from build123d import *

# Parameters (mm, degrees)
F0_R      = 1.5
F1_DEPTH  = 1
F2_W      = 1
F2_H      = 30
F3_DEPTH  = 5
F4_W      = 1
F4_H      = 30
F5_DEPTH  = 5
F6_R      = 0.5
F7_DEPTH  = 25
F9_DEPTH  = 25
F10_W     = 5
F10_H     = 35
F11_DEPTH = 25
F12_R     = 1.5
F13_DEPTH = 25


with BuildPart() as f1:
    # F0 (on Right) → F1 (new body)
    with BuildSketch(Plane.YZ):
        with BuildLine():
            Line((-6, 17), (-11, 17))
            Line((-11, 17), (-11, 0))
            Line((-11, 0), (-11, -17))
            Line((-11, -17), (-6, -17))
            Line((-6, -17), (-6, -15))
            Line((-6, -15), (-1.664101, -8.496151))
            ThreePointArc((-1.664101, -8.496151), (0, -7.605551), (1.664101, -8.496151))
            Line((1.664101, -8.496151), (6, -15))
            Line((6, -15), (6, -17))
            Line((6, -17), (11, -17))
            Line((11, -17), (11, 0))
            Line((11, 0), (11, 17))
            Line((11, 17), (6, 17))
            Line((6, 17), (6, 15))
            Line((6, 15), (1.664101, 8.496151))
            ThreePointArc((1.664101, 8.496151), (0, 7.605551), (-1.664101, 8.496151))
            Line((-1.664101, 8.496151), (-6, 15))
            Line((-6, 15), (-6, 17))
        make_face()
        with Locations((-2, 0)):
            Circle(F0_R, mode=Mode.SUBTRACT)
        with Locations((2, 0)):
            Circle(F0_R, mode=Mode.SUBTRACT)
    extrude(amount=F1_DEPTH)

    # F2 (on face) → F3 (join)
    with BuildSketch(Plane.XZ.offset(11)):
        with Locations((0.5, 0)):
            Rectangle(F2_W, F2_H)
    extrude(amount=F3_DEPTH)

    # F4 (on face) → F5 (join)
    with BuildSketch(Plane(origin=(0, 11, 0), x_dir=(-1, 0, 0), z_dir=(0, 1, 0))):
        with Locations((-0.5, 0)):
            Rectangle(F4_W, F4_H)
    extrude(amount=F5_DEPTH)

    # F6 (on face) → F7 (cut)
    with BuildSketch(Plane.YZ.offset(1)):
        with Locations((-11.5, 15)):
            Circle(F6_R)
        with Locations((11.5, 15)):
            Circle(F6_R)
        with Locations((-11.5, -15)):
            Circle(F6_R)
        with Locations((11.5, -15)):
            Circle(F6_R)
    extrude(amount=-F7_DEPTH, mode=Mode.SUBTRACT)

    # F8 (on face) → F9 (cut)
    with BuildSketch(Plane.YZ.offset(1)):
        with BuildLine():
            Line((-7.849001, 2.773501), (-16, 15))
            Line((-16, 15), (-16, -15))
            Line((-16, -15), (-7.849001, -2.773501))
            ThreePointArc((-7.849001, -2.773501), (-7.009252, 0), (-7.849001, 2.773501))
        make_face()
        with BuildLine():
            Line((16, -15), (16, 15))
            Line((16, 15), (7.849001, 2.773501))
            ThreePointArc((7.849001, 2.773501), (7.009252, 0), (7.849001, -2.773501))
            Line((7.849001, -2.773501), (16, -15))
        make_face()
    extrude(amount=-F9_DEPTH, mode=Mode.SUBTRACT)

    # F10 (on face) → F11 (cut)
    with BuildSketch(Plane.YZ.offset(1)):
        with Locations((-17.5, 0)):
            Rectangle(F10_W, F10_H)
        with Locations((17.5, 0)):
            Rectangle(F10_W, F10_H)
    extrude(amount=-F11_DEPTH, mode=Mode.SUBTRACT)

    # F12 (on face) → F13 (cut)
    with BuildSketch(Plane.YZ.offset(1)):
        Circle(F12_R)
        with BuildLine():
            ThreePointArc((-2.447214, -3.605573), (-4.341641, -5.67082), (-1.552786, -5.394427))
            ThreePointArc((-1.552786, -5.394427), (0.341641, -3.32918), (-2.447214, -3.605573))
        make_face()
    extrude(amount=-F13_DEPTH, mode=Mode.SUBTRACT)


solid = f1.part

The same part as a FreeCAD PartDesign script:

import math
import FreeCAD as App
import Part
import Sketcher
Q = App.Units.Quantity

doc = App.newDocument("Part")
body = doc.addObject("PartDesign::Body", "Body")

# Sketch on YZ plane
sketch1 = body.newObject("Sketcher::SketchObject", "Sketch")
sketch1.AttachmentSupport = (doc.getObject("YZ_Plane"), [""])
sketch1.MapMode = "FlatFace"
sketch1.addGeometry(Part.LineSegment(App.Vector(-6, 17, 0), App.Vector(-11, 17, 0)), False)
sketch1.addGeometry(Part.LineSegment(App.Vector(-11, 17, 0), App.Vector(-11, -17, 0)), False)
sketch1.addGeometry(Part.LineSegment(App.Vector(-11, -17, 0), App.Vector(-6, -17, 0)), False)
sketch1.addGeometry(Part.LineSegment(App.Vector(-6, -17, 0), App.Vector(-6, -15, 0)), False)
sketch1.addGeometry(Part.LineSegment(App.Vector(-6, -15, 0), App.Vector(-1.664101, -8.496151, 0)), False)
sketch1.addGeometry(Part.ArcOfCircle(Part.Circle(App.Vector(0, -9.605551, 0), App.Vector(0, 0, 1), 2), math.radians(33.690058), math.radians(146.309942)), False)
sketch1.addGeometry(Part.LineSegment(App.Vector(1.664101, -8.496151, 0), App.Vector(6, -15, 0)), False)
sketch1.addGeometry(Part.LineSegment(App.Vector(6, -15, 0), App.Vector(6, -17, 0)), False)
sketch1.addGeometry(Part.LineSegment(App.Vector(6, -17, 0), App.Vector(11, -17, 0)), False)
sketch1.addGeometry(Part.LineSegment(App.Vector(11, -17, 0), App.Vector(11, 17, 0)), False)
sketch1.addGeometry(Part.LineSegment(App.Vector(11, 17, 0), App.Vector(6, 17, 0)), False)
sketch1.addGeometry(Part.LineSegment(App.Vector(6, 17, 0), App.Vector(6, 15, 0)), False)
sketch1.addGeometry(Part.LineSegment(App.Vector(6, 15, 0), App.Vector(1.664101, 8.496151, 0)), False)
sketch1.addGeometry(Part.ArcOfCircle(Part.Circle(App.Vector(0, 9.605551, 0), App.Vector(0, 0, 1), 2), math.radians(-146.309942), math.radians(-33.690058)), False)
sketch1.addGeometry(Part.LineSegment(App.Vector(-1.664101, 8.496151, 0), App.Vector(-6, 15, 0)), False)
sketch1.addGeometry(Part.LineSegment(App.Vector(-6, 15, 0), App.Vector(-6, 17, 0)), False)
sketch1.addGeometry(Part.Circle(App.Vector(-2, 0, 0), App.Vector(0, 0, 1), 1.5), False)
sketch1.addGeometry(Part.Circle(App.Vector(2, 0, 0), App.Vector(0, 0, 1), 1.5), False)
sketch1.addConstraint(Sketcher.Constraint("Coincident", 0, 2, 1, 1))
sketch1.addConstraint(Sketcher.Constraint("Coincident", 1, 2, 2, 1))
sketch1.addConstraint(Sketcher.Constraint("Coincident", 2, 2, 3, 1))
sketch1.addConstraint(Sketcher.Constraint("Coincident", 3, 2, 4, 1))
sketch1.addConstraint(Sketcher.Constraint("Tangent", 4, 2, 5, 2))
sketch1.addConstraint(Sketcher.Constraint("Tangent", 5, 1, 6, 1))
sketch1.addConstraint(Sketcher.Constraint("Coincident", 6, 2, 7, 1))
sketch1.addConstraint(Sketcher.Constraint("Coincident", 7, 2, 8, 1))
sketch1.addConstraint(Sketcher.Constraint("Coincident", 8, 2, 9, 1))
sketch1.addConstraint(Sketcher.Constraint("Coincident", 9, 2, 10, 1))
sketch1.addConstraint(Sketcher.Constraint("Coincident", 10, 2, 11, 1))
sketch1.addConstraint(Sketcher.Constraint("Coincident", 11, 2, 12, 1))
sketch1.addConstraint(Sketcher.Constraint("Tangent", 12, 2, 13, 2))
sketch1.addConstraint(Sketcher.Constraint("Tangent", 13, 1, 14, 1))
sketch1.addConstraint(Sketcher.Constraint("Coincident", 14, 2, 15, 1))
sketch1.addConstraint(Sketcher.Constraint("Coincident", 15, 2, 0, 1))
sketch1.addConstraint(Sketcher.Constraint("Horizontal", 0))
sketch1.addConstraint(Sketcher.Constraint("Vertical", 1))
sketch1.addConstraint(Sketcher.Constraint("Horizontal", 2))
sketch1.addConstraint(Sketcher.Constraint("Vertical", 3))
sketch1.addConstraint(Sketcher.Constraint("Vertical", 7))
sketch1.addConstraint(Sketcher.Constraint("Horizontal", 8))
sketch1.addConstraint(Sketcher.Constraint("Vertical", 9))
sketch1.addConstraint(Sketcher.Constraint("Horizontal", 10))
sketch1.addConstraint(Sketcher.Constraint("Vertical", 11))
sketch1.addConstraint(Sketcher.Constraint("Vertical", 15))
sketch1.addConstraint(Sketcher.Constraint("Equal", 5, 13))
sketch1.addConstraint(Sketcher.Constraint("Equal", 16, 17))
sketch1.addConstraint(Sketcher.Constraint("Symmetric", 5, 3, 13, 3, -1, 1))
sketch1.addConstraint(Sketcher.Constraint("Symmetric", 16, 3, 17, 3, -1, 1))
sketch1.addConstraint(Sketcher.Constraint("Symmetric", 0, 2, 8, 2, -1, 1))
sketch1.addConstraint(Sketcher.Constraint("Symmetric", 2, 2, 10, 2, -1, 1))
sketch1.addConstraint(Sketcher.Constraint("Symmetric", 6, 2, 14, 2, -1, 1))
sketch1.addConstraint(Sketcher.Constraint("Symmetric", 4, 2, 5, 1, -2))
sketch1.addConstraint(Sketcher.Constraint("Symmetric", 2, 2, 7, 2, -2))
sketch1.addConstraint(Sketcher.Constraint("PointOnObject", 16, 3, -1))
sketch1.addConstraint(Sketcher.Constraint("Parallel", 4, 12))
sketch1.addConstraint(Sketcher.Constraint("Diameter", 16, Q("3 mm")))
sketch1.addConstraint(Sketcher.Constraint("Radius", 5, Q("2 mm")))
sketch1.addConstraint(Sketcher.Constraint("DistanceX", 0, 2, 0, 1, Q("5 mm")))
sketch1.addConstraint(Sketcher.Constraint("DistanceY", 1, 2, 1, 1, Q("34 mm")))
sketch1.addConstraint(Sketcher.Constraint("DistanceY", 3, 1, 3, 2, Q("2 mm")))
sketch1.addConstraint(Sketcher.Constraint("DistanceX", 16, 3, -1, 1, Q("2 mm")))
sketch1.addConstraint(Sketcher.Constraint("DistanceX", 0, 2, -1, 1, Q("11 mm")))
sketch1.addConstraint(Sketcher.Constraint("DistanceX", 4, 2, -1, 1, Q("1.664101 mm")))
pad1 = body.newObject("PartDesign::Pad", "Pad")
pad1.Profile = sketch1
pad1.Length = 1

# Sketch on XZ plane
sketch2 = body.newObject("Sketcher::SketchObject", "Sketch001")
sketch2.AttachmentSupport = (doc.getObject("XZ_Plane"), [""])
sketch2.MapMode = "FlatFace"
sketch2.AttachmentOffset = App.Placement(App.Vector(0, 0, 11), App.Rotation())
sketch2.addGeometry(Part.LineSegment(App.Vector(0, 15, 0), App.Vector(0, -15, 0)), False)
sketch2.addGeometry(Part.LineSegment(App.Vector(0, -15, 0), App.Vector(1, -15, 0)), False)
sketch2.addGeometry(Part.LineSegment(App.Vector(1, -15, 0), App.Vector(1, 15, 0)), False)
sketch2.addGeometry(Part.LineSegment(App.Vector(1, 15, 0), App.Vector(0, 15, 0)), False)
sketch2.addConstraint(Sketcher.Constraint("Coincident", 0, 2, 1, 1))
sketch2.addConstraint(Sketcher.Constraint("Coincident", 1, 2, 2, 1))
sketch2.addConstraint(Sketcher.Constraint("Coincident", 2, 2, 3, 1))
sketch2.addConstraint(Sketcher.Constraint("Coincident", 3, 2, 0, 1))
sketch2.addConstraint(Sketcher.Constraint("Vertical", 0))
sketch2.addConstraint(Sketcher.Constraint("Horizontal", 1))
sketch2.addConstraint(Sketcher.Constraint("Vertical", 2))
sketch2.addConstraint(Sketcher.Constraint("Horizontal", 3))
sketch2.addConstraint(Sketcher.Constraint("Symmetric", 0, 2, 3, 2, -1, 1))
sketch2.addConstraint(Sketcher.Constraint("DistanceX", 1, 1, 1, 2, Q("1 mm")))
sketch2.addConstraint(Sketcher.Constraint("DistanceY", 0, 2, 0, 1, Q("30 mm")))
pad2 = body.newObject("PartDesign::Pad", "Pad001")
pad2.Profile = sketch2
pad2.Length = 5

# Sketch on XZ plane
sketch3 = body.newObject("Sketcher::SketchObject", "Sketch002")
sketch3.AttachmentSupport = (doc.getObject("XZ_Plane"), [""])
sketch3.MapMode = "FlatFace"
sketch3.AttachmentOffset = App.Placement(App.Vector(0, 0, -11), App.Rotation())
sketch3.addGeometry(Part.LineSegment(App.Vector(1, 15, 0), App.Vector(1, -15, 0)), False)
sketch3.addGeometry(Part.LineSegment(App.Vector(1, -15, 0), App.Vector(0, -15, 0)), False)
sketch3.addGeometry(Part.LineSegment(App.Vector(0, -15, 0), App.Vector(0, 15, 0)), False)
sketch3.addGeometry(Part.LineSegment(App.Vector(0, 15, 0), App.Vector(1, 15, 0)), False)
sketch3.addConstraint(Sketcher.Constraint("Coincident", 0, 2, 1, 1))
sketch3.addConstraint(Sketcher.Constraint("Coincident", 1, 2, 2, 1))
sketch3.addConstraint(Sketcher.Constraint("Coincident", 2, 2, 3, 1))
sketch3.addConstraint(Sketcher.Constraint("Coincident", 3, 2, 0, 1))
sketch3.addConstraint(Sketcher.Constraint("Vertical", 0))
sketch3.addConstraint(Sketcher.Constraint("Horizontal", 1))
sketch3.addConstraint(Sketcher.Constraint("Vertical", 2))
sketch3.addConstraint(Sketcher.Constraint("Horizontal", 3))
sketch3.addConstraint(Sketcher.Constraint("Symmetric", 1, 2, 2, 2, -1, 1))
sketch3.addConstraint(Sketcher.Constraint("DistanceX", 1, 2, 1, 1, Q("1 mm")))
sketch3.addConstraint(Sketcher.Constraint("DistanceY", 0, 2, 0, 1, Q("30 mm")))
pad3 = body.newObject("PartDesign::Pad", "Pad002")
pad3.Profile = sketch3
pad3.Length = 5
pad3.Reversed = True

# Sketch on YZ plane
sketch4 = body.newObject("Sketcher::SketchObject", "Sketch003")
sketch4.AttachmentSupport = (doc.getObject("YZ_Plane"), [""])
sketch4.MapMode = "FlatFace"
sketch4.AttachmentOffset = App.Placement(App.Vector(0, 0, 1), App.Rotation())
sketch4.addGeometry(Part.Circle(App.Vector(-11.5, 15, 0), App.Vector(0, 0, 1), 0.5), False)
sketch4.addGeometry(Part.Circle(App.Vector(11.5, 15, 0), App.Vector(0, 0, 1), 0.5), False)
sketch4.addGeometry(Part.Circle(App.Vector(-11.5, -15, 0), App.Vector(0, 0, 1), 0.5), False)
sketch4.addGeometry(Part.Circle(App.Vector(11.5, -15, 0), App.Vector(0, 0, 1), 0.5), False)
sketch4.addConstraint(Sketcher.Constraint("Equal", 0, 1))
sketch4.addConstraint(Sketcher.Constraint("Equal", 1, 2))
sketch4.addConstraint(Sketcher.Constraint("Equal", 2, 3))
sketch4.addConstraint(Sketcher.Constraint("Symmetric", 1, 3, 2, 3, -1, 1))
sketch4.addConstraint(Sketcher.Constraint("Symmetric", 0, 3, 3, 3, -1, 1))
sketch4.addConstraint(Sketcher.Constraint("Symmetric", 0, 3, 1, 3, -2))
sketch4.addConstraint(Sketcher.Constraint("Diameter", 0, Q("1 mm")))
sketch4.addConstraint(Sketcher.Constraint("DistanceY", -1, 1, 0, 3, Q("15 mm")))
sketch4.addConstraint(Sketcher.Constraint("DistanceX", 0, 3, 1, 3, Q("23 mm")))
pocket1 = body.newObject("PartDesign::Pocket", "Pocket")
pocket1.Profile = sketch4
pocket1.Length = 25

# Sketch on YZ plane
sketch5 = body.newObject("Sketcher::SketchObject", "Sketch004")
sketch5.AttachmentSupport = (doc.getObject("YZ_Plane"), [""])
sketch5.MapMode = "FlatFace"
sketch5.AttachmentOffset = App.Placement(App.Vector(0, 0, 1), App.Rotation())
sketch5.addGeometry(Part.LineSegment(App.Vector(-7.849001, 2.773501, 0), App.Vector(-16, 15, 0)), False)
sketch5.addGeometry(Part.LineSegment(App.Vector(-16, 15, 0), App.Vector(-16, -15, 0)), False)
sketch5.addGeometry(Part.LineSegment(App.Vector(-16, -15, 0), App.Vector(-7.849001, -2.773501, 0)), False)
sketch5.addGeometry(Part.ArcOfCircle(Part.Circle(App.Vector(-12.00925, 0, 0), App.Vector(0, 0, 1), 4.999998), math.radians(-33.690085), math.radians(33.690085)), False)
sketch5.addGeometry(Part.LineSegment(App.Vector(16, -15, 0), App.Vector(16, 15, 0)), False)
sketch5.addGeometry(Part.LineSegment(App.Vector(16, 15, 0), App.Vector(7.849001, 2.773501, 0)), False)
sketch5.addGeometry(Part.ArcOfCircle(Part.Circle(App.Vector(12.00925, 0, 0), App.Vector(0, 0, 1), 4.999998), math.radians(146.309915), math.radians(213.690085)), False)
sketch5.addGeometry(Part.LineSegment(App.Vector(7.849001, -2.773501, 0), App.Vector(16, -15, 0)), False)
sketch5.addConstraint(Sketcher.Constraint("Coincident", 0, 2, 1, 1))
sketch5.addConstraint(Sketcher.Constraint("Coincident", 1, 2, 2, 1))
sketch5.addConstraint(Sketcher.Constraint("Tangent", 2, 2, 3, 1))
sketch5.addConstraint(Sketcher.Constraint("Tangent", 3, 2, 0, 1))
sketch5.addConstraint(Sketcher.Constraint("Coincident", 4, 2, 5, 1))
sketch5.addConstraint(Sketcher.Constraint("Tangent", 5, 2, 6, 1))
sketch5.addConstraint(Sketcher.Constraint("Tangent", 6, 2, 7, 1))
sketch5.addConstraint(Sketcher.Constraint("Coincident", 7, 2, 4, 1))
sketch5.addConstraint(Sketcher.Constraint("Vertical", 1))
sketch5.addConstraint(Sketcher.Constraint("Vertical", 4))
sketch5.addConstraint(Sketcher.Constraint("Equal", 3, 6))
sketch5.addConstraint(Sketcher.Constraint("Symmetric", 3, 3, 6, 3, -1, 1))
sketch5.addConstraint(Sketcher.Constraint("Symmetric", 1, 2, 4, 2, -1, 1))
sketch5.addConstraint(Sketcher.Constraint("Symmetric", 3, 2, 5, 2, -2))
sketch5.addConstraint(Sketcher.Constraint("Parallel", 0, 7))
sketch5.addConstraint(Sketcher.Constraint("DistanceY", 1, 2, 1, 1, Q("30 mm")))
sketch5.addConstraint(Sketcher.Constraint("DistanceX", 0, 2, -1, 1, Q("16 mm")))
sketch5.addConstraint(Sketcher.Constraint("DistanceX", 2, 2, -1, 1, Q("7.849001 mm")))
sketch5.addConstraint(Sketcher.Constraint("Radius", 3, Q("4.999998 mm")))
pocket2 = body.newObject("PartDesign::Pocket", "Pocket001")
pocket2.Profile = sketch5
pocket2.Length = 25

# Sketch on YZ plane
sketch6 = body.newObject("Sketcher::SketchObject", "Sketch005")
sketch6.AttachmentSupport = (doc.getObject("YZ_Plane"), [""])
sketch6.MapMode = "FlatFace"
sketch6.AttachmentOffset = App.Placement(App.Vector(0, 0, 1), App.Rotation())
sketch6.addGeometry(Part.LineSegment(App.Vector(-20, 17.5, 0), App.Vector(-20, -17.5, 0)), False)
sketch6.addGeometry(Part.LineSegment(App.Vector(-20, -17.5, 0), App.Vector(-15, -17.5, 0)), False)
sketch6.addGeometry(Part.LineSegment(App.Vector(-15, -17.5, 0), App.Vector(-15, 17.5, 0)), False)
sketch6.addGeometry(Part.LineSegment(App.Vector(-15, 17.5, 0), App.Vector(-20, 17.5, 0)), False)
sketch6.addGeometry(Part.LineSegment(App.Vector(15, 17.5, 0), App.Vector(15, -17.5, 0)), False)
sketch6.addGeometry(Part.LineSegment(App.Vector(15, -17.5, 0), App.Vector(20, -17.5, 0)), False)
sketch6.addGeometry(Part.LineSegment(App.Vector(20, -17.5, 0), App.Vector(20, 17.5, 0)), False)
sketch6.addGeometry(Part.LineSegment(App.Vector(20, 17.5, 0), App.Vector(15, 17.5, 0)), False)
sketch6.addConstraint(Sketcher.Constraint("Coincident", 0, 2, 1, 1))
sketch6.addConstraint(Sketcher.Constraint("Coincident", 1, 2, 2, 1))
sketch6.addConstraint(Sketcher.Constraint("Coincident", 2, 2, 3, 1))
sketch6.addConstraint(Sketcher.Constraint("Coincident", 3, 2, 0, 1))
sketch6.addConstraint(Sketcher.Constraint("Coincident", 4, 2, 5, 1))
sketch6.addConstraint(Sketcher.Constraint("Coincident", 5, 2, 6, 1))
sketch6.addConstraint(Sketcher.Constraint("Coincident", 6, 2, 7, 1))
sketch6.addConstraint(Sketcher.Constraint("Coincident", 7, 2, 4, 1))
sketch6.addConstraint(Sketcher.Constraint("Vertical", 0))
sketch6.addConstraint(Sketcher.Constraint("Horizontal", 1))
sketch6.addConstraint(Sketcher.Constraint("Vertical", 2))
sketch6.addConstraint(Sketcher.Constraint("Horizontal", 3))
sketch6.addConstraint(Sketcher.Constraint("Vertical", 4))
sketch6.addConstraint(Sketcher.Constraint("Horizontal", 5))
sketch6.addConstraint(Sketcher.Constraint("Vertical", 6))
sketch6.addConstraint(Sketcher.Constraint("Horizontal", 7))
sketch6.addConstraint(Sketcher.Constraint("Symmetric", 2, 2, 4, 2, -1, 1))
sketch6.addConstraint(Sketcher.Constraint("Symmetric", 0, 2, 6, 2, -1, 1))
sketch6.addConstraint(Sketcher.Constraint("Horizontal", 1, 2, 4, 2))
sketch6.addConstraint(Sketcher.Constraint("DistanceX", 1, 1, 1, 2, Q("5 mm")))
sketch6.addConstraint(Sketcher.Constraint("DistanceY", 0, 2, 0, 1, Q("35 mm")))
sketch6.addConstraint(Sketcher.Constraint("DistanceX", 0, 2, -1, 1, Q("20 mm")))
pocket3 = body.newObject("PartDesign::Pocket", "Pocket002")
pocket3.Profile = sketch6
pocket3.Length = 25

# Sketch on YZ plane
sketch7 = body.newObject("Sketcher::SketchObject", "Sketch006")
sketch7.AttachmentSupport = (doc.getObject("YZ_Plane"), [""])
sketch7.MapMode = "FlatFace"
sketch7.AttachmentOffset = App.Placement(App.Vector(0, 0, 1), App.Rotation())
sketch7.addGeometry(Part.Circle(App.Vector(0, 0, 0), App.Vector(0, 0, 1), 1.5), False)
sketch7.addGeometry(Part.ArcOfCircle(Part.Circle(App.Vector(-3, -5, 0), App.Vector(0, 0, 1), 1.5), math.radians(68.375392), math.radians(344.754762)), False)
sketch7.addGeometry(Part.ArcOfCircle(Part.Circle(App.Vector(-1, -4, 0), App.Vector(0, 0, 1), 1.5), math.radians(-111.624608), math.radians(164.754762)), False)
sketch7.addConstraint(Sketcher.Constraint("Coincident", 1, 1, 2, 2))
sketch7.addConstraint(Sketcher.Constraint("Coincident", 2, 1, 1, 2))
sketch7.addConstraint(Sketcher.Constraint("Coincident", 0, 3, -1, 1))
sketch7.addConstraint(Sketcher.Constraint("Equal", 0, 1))
sketch7.addConstraint(Sketcher.Constraint("Equal", 1, 2))
sketch7.addConstraint(Sketcher.Constraint("Diameter", 0, Q("3 mm")))
sketch7.addConstraint(Sketcher.Constraint("DistanceX", 1, 3, -1, 1, Q("3 mm")))
sketch7.addConstraint(Sketcher.Constraint("DistanceY", 1, 3, -1, 1, Q("5 mm")))
sketch7.addConstraint(Sketcher.Constraint("DistanceX", 2, 3, -1, 1, Q("1 mm")))
sketch7.addConstraint(Sketcher.Constraint("DistanceY", 2, 3, -1, 1, Q("4 mm")))
pocket4 = body.newObject("PartDesign::Pocket", "Pocket003")
pocket4.Profile = sketch7
pocket4.Length = 25

doc.recompute()
